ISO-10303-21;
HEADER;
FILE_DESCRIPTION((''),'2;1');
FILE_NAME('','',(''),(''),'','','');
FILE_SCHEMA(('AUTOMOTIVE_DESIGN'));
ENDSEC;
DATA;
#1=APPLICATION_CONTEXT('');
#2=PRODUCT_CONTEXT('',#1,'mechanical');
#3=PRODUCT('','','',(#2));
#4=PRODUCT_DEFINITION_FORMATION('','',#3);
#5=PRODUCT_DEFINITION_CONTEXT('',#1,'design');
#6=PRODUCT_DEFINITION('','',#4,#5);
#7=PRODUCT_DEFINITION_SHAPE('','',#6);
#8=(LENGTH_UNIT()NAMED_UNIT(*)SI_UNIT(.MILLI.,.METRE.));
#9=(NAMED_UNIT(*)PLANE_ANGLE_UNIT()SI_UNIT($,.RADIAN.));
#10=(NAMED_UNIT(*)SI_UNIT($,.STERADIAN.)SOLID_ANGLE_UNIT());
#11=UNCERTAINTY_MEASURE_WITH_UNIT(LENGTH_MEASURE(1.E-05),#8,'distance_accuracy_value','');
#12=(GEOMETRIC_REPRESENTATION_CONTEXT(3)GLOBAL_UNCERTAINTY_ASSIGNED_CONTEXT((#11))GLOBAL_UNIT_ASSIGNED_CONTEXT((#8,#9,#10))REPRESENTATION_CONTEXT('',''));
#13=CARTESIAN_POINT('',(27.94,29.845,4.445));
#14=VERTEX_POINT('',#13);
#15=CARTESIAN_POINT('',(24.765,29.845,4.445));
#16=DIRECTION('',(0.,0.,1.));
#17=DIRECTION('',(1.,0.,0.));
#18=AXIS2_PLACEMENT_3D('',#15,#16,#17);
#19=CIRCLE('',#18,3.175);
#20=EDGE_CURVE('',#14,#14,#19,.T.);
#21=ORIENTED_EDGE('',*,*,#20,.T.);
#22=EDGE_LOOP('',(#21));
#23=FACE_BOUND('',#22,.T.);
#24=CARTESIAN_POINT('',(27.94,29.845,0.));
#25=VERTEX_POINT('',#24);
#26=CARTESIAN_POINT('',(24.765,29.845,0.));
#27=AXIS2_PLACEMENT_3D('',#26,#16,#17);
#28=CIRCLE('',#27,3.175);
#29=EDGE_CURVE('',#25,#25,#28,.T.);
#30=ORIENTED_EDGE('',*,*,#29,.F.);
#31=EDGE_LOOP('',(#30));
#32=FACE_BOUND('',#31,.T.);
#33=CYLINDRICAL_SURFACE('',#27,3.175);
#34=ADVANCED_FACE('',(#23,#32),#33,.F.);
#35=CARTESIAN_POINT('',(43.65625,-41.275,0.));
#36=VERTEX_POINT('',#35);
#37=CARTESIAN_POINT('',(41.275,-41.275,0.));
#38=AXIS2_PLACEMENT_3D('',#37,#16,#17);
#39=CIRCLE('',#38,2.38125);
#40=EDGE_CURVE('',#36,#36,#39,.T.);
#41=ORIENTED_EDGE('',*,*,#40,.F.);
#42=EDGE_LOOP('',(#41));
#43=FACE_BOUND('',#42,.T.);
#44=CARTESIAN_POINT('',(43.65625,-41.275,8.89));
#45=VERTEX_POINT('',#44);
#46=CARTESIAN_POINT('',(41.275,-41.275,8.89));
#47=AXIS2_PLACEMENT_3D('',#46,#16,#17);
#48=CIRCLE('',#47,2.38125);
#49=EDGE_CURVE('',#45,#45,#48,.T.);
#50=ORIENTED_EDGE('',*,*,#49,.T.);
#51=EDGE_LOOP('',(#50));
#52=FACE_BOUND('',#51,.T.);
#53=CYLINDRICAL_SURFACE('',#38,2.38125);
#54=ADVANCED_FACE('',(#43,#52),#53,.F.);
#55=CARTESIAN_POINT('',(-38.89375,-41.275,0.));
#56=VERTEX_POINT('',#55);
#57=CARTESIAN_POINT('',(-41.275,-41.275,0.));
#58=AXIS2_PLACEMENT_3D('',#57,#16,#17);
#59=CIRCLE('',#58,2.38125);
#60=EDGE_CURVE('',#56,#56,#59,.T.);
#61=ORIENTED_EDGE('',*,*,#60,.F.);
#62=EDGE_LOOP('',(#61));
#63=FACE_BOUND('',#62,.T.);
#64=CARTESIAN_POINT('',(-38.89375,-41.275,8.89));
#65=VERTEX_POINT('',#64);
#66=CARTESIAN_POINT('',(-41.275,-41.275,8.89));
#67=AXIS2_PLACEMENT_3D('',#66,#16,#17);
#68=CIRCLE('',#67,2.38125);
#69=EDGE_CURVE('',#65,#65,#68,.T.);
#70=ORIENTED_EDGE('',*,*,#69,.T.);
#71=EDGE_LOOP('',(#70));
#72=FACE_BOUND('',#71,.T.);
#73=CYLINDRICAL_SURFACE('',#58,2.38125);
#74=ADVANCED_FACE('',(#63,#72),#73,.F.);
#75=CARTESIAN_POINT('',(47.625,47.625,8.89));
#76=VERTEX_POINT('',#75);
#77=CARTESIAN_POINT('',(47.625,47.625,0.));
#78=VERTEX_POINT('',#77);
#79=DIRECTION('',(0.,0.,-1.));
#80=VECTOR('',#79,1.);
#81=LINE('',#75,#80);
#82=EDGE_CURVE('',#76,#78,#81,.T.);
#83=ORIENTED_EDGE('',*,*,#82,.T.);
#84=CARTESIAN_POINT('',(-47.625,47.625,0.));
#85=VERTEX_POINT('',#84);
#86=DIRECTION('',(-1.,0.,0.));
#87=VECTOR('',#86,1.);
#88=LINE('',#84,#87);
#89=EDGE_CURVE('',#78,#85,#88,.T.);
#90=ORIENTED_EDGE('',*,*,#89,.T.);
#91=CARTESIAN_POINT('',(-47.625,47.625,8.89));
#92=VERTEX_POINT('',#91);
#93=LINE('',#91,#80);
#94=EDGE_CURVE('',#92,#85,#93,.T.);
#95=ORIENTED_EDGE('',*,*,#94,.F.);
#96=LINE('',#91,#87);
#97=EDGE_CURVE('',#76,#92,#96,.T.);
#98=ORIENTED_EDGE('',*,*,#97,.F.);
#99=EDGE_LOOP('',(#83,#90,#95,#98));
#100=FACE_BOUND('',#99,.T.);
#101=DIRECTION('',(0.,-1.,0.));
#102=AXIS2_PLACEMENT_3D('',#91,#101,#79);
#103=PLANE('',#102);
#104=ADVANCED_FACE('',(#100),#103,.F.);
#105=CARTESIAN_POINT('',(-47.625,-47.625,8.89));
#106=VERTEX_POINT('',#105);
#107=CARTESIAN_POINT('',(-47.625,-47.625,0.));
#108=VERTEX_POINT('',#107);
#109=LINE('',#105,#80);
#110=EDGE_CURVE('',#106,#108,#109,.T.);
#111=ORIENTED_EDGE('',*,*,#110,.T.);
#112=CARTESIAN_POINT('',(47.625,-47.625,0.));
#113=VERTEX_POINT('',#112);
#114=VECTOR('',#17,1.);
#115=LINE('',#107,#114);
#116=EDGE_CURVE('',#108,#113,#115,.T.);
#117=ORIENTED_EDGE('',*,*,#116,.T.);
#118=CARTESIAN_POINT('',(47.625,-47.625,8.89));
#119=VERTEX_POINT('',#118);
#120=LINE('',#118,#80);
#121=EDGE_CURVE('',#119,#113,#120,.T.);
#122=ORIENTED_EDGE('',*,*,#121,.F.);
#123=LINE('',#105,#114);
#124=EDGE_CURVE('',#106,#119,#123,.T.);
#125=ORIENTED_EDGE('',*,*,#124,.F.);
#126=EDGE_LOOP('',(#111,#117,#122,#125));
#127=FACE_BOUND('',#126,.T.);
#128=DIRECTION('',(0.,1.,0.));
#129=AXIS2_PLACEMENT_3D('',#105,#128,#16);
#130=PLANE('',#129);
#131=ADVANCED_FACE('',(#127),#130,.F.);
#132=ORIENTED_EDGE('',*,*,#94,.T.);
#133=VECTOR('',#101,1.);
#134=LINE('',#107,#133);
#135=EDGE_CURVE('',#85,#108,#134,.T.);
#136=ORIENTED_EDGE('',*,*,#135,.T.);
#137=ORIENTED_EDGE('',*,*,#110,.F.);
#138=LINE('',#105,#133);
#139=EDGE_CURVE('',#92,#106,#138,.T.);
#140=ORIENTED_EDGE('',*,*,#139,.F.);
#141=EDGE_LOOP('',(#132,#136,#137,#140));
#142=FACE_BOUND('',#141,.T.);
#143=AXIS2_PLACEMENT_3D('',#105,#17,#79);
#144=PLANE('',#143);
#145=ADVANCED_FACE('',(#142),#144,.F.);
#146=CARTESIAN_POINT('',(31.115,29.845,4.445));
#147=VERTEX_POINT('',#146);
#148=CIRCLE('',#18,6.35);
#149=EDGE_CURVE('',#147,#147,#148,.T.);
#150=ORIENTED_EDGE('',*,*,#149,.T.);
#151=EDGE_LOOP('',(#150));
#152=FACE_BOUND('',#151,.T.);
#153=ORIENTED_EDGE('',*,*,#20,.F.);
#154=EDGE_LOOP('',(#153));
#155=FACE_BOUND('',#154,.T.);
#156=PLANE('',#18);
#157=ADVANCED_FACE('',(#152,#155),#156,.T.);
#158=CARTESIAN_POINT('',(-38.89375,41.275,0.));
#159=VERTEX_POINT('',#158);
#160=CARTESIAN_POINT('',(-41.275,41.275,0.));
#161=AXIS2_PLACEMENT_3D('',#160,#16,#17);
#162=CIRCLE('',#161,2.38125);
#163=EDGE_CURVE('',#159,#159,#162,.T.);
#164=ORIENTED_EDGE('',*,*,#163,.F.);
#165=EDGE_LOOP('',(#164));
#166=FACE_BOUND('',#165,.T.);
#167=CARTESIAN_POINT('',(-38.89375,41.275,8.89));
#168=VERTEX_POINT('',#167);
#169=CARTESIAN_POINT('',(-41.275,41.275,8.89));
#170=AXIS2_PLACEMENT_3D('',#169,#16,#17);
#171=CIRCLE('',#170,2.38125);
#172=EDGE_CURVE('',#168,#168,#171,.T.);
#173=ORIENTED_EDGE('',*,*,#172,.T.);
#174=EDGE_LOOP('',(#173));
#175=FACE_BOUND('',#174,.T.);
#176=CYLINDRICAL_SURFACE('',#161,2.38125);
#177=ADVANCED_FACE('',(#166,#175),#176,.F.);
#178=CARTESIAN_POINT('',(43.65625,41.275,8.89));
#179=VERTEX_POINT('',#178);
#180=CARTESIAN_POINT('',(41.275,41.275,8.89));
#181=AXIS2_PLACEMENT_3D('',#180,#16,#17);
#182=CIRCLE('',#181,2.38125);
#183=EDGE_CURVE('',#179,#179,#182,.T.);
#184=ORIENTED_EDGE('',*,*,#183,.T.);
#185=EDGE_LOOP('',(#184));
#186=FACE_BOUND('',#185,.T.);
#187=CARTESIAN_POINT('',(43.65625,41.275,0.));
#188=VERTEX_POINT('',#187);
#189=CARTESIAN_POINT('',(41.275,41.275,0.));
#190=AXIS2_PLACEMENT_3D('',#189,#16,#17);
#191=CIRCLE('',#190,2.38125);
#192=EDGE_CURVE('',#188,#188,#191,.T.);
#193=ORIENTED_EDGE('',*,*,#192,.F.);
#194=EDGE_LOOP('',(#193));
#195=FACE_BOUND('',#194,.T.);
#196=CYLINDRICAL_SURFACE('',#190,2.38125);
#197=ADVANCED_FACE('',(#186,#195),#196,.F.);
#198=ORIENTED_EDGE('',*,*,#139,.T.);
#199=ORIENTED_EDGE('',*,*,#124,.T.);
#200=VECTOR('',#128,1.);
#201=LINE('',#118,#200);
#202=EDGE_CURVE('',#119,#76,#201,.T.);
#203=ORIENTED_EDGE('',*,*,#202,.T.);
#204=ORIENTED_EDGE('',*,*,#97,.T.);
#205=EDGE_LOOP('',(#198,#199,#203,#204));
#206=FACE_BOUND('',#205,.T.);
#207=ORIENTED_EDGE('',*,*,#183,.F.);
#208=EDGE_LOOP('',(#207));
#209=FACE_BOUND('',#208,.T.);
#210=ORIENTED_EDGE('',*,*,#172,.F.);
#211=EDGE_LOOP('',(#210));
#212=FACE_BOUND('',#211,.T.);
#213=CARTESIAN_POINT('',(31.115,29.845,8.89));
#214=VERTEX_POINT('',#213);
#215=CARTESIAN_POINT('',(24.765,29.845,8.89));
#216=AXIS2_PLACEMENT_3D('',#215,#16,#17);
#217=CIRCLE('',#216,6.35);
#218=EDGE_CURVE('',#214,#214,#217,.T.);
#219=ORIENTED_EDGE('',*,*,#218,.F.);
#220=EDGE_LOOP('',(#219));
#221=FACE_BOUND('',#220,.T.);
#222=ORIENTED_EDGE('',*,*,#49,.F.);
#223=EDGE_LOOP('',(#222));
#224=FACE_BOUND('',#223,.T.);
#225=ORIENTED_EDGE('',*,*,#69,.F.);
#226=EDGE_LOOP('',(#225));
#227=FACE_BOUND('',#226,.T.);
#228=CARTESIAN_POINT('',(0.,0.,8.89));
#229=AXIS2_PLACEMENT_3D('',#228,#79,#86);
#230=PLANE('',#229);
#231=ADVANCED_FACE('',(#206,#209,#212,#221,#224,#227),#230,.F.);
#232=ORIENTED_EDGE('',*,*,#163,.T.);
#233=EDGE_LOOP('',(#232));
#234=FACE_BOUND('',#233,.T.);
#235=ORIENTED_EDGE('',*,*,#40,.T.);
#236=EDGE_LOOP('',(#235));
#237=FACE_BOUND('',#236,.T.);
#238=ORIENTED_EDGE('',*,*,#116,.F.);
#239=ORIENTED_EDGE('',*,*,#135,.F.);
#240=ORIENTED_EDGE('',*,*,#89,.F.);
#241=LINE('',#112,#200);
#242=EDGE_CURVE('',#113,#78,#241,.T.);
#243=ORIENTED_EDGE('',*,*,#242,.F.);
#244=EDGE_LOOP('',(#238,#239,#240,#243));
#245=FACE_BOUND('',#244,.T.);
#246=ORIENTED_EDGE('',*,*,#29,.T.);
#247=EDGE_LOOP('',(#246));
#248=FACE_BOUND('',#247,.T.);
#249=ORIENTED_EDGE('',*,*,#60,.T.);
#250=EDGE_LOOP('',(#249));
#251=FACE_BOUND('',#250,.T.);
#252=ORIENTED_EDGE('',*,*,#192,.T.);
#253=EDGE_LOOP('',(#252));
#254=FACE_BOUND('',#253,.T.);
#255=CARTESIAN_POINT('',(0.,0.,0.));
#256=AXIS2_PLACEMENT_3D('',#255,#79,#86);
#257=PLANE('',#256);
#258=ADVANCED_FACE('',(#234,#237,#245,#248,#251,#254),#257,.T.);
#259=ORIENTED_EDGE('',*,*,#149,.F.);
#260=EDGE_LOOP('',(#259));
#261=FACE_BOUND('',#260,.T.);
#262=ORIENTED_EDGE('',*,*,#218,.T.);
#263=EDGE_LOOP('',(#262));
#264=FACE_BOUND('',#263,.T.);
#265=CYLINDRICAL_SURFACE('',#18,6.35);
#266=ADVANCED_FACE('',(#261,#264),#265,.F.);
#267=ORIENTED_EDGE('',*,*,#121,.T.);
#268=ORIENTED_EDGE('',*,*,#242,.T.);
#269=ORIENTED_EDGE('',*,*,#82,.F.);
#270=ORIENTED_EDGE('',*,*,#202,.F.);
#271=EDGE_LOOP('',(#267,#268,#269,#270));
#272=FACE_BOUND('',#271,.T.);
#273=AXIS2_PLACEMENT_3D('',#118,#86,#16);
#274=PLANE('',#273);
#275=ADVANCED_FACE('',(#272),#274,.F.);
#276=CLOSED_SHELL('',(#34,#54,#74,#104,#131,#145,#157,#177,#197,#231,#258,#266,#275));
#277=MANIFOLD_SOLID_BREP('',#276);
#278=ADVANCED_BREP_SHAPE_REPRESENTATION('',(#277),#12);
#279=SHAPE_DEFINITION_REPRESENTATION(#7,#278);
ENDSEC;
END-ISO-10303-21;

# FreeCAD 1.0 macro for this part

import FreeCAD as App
import Part
import Sketcher
from FreeCAD import Vector
Q = App.Units.Quantity

doc = App.newDocument("Part")
body = doc.addObject("PartDesign::Body", "Body")

# Sketch on XY plane
sketch1 = body.newObject("Sketcher::SketchObject", "Sketch")
sketch1.AttachmentSupport = (doc.getObject("XY_Plane"), [""])
sketch1.MapMode = "FlatFace"
sketch1.addGeometry([
    Part.LineSegment(Vector(-48, 48, 0), Vector(-48, -48, 0)),
    Part.LineSegment(Vector(-48, -48, 0), Vector(48, -48, 0)),
    Part.LineSegment(Vector(48, -48, 0), Vector(48, 48, 0)),
    Part.LineSegment(Vector(48, 48, 0), Vector(-48, 48, 0)),
], False)
sketch1.addConstraint([
    Sketcher.Constraint("Coincident", 0, 2, 1, 1),
    Sketcher.Constraint("Coincident", 1, 2, 2, 1),
    Sketcher.Constraint("Coincident", 2, 2, 3, 1),
    Sketcher.Constraint("Coincident", 3, 2, 0, 1),
    Sketcher.Constraint("Vertical", 0),
    Sketcher.Constraint("Horizontal", 1),
    Sketcher.Constraint("Vertical", 2),
    Sketcher.Constraint("Horizontal", 3),
    Sketcher.Constraint("Symmetric", 0, 2, 2, 2, -1, 1),
    Sketcher.Constraint("Equal", 3, 0),
    Sketcher.Constraint("DistanceX", 1, 1, 1, 2, Q("3.75 in")),
])
pad1 = body.newObject("PartDesign::Pad", "Pad")
pad1.Profile = sketch1
pad1.Length = Q("0.35 in")

# Sketch on XY plane
sketch2 = body.newObject("Sketcher::SketchObject", "Sketch001")
sketch2.AttachmentSupport = (doc.getObject("XY_Plane"), [""])
sketch2.MapMode = "FlatFace"
sketch2.AttachmentOffset = App.Placement(Vector(0, 0, 0.35 * 25.4), App.Rotation())
sketch2.addGeometry([
    Part.LineSegment(Vector(-62.1, 62.1, 0), Vector(-62.1, -62.1, 0)),  # 0
    Part.LineSegment(Vector(-62.1, -62.1, 0), Vector(62.1, -62.1, 0)),  # 1
    Part.LineSegment(Vector(62.1, -62.1, 0), Vector(62.1, 62.1, 0)),  # 2
    Part.LineSegment(Vector(62.1, 62.1, 0), Vector(-62.1, 62.1, 0)),  # 3
    Part.LineSegment(Vector(47.6, -47.6, 0), Vector(-47.6, -47.6, 0)),  # 4
    Part.LineSegment(Vector(-47.6, -47.6, 0), Vector(-47.6, 47.6, 0)),  # 5
    Part.LineSegment(Vector(-47.6, 47.6, 0), Vector(47.6, 47.6, 0)),  # 6
    Part.LineSegment(Vector(47.6, 47.6, 0), Vector(47.6, -47.6, 0)),  # 7
    Part.Circle(Vector(-41.3, 41.3, 0), Vector(0, 0, 1), 2.4),  # 8
    Part.Circle(Vector(41.3, 41.3, 0), Vector(0, 0, 1), 2.4),  # 9
    Part.Circle(Vector(41.3, -41.3, 0), Vector(0, 0, 1), 2.4),  # 10
    Part.Circle(Vector(-41.3, -41.3, 0), Vector(0, 0, 1), 2.4),  # 11
], False)
sketch2.addConstraint([
    Sketcher.Constraint("Coincident", 0, 2, 1, 1),
    Sketcher.Constraint("Coincident", 1, 2, 2, 1),
    Sketcher.Constraint("Coincident", 2, 2, 3, 1),
    Sketcher.Constraint("Coincident", 3, 2, 0, 1),
    Sketcher.Constraint("Coincident", 4, 2, 5, 1),
    Sketcher.Constraint("Coincident", 5, 2, 6, 1),
    Sketcher.Constraint("Coincident", 6, 2, 7, 1),
    Sketcher.Constraint("Coincident", 7, 2, 4, 1),
    Sketcher.Constraint("Vertical", 0),
    Sketcher.Constraint("Horizontal", 1),
    Sketcher.Constraint("Vertical", 2),
    Sketcher.Constraint("Horizontal", 3),
    Sketcher.Constraint("Horizontal", 4),
    Sketcher.Constraint("Vertical", 5),
    Sketcher.Constraint("Horizontal", 6),
    Sketcher.Constraint("Vertical", 7),
    Sketcher.Constraint("Equal", 8, 9),
    Sketcher.Constraint("Equal", 9, 10),
    Sketcher.Constraint("Equal", 10, 11),
    Sketcher.Constraint("Symmetric", 8, 3, 10, 3, -1, 1),
    Sketcher.Constraint("Symmetric", 9, 3, 11, 3, -1, 1),
    Sketcher.Constraint("Symmetric", 0, 2, 2, 2, -1, 1),
    Sketcher.Constraint("Symmetric", 4, 2, 6, 2, -1, 1),
    Sketcher.Constraint("Symmetric", 8, 3, 9, 3, -2),
    Sketcher.Constraint("Equal", 3, 0),
    Sketcher.Constraint("Equal", 6, 5),
    Sketcher.Constraint("Diameter", 8, Q("0.1875 in")),
    Sketcher.Constraint("DistanceX", 4, 2, 4, 1, Q("3.75 in")),
    Sketcher.Constraint("DistanceY", 4, 2, 8, 3, Q("3.5 in")),
    Sketcher.Constraint("DistanceX", 4, 2, 10, 3, Q("3.5 in")),
    Sketcher.Constraint("DistanceX", 1, 1, 1, 2, 124.25),
])
pocket1 = body.newObject("PartDesign::Pocket", "Pocket")
pocket1.Profile = sketch2
pocket1.Type = "ThroughAll"

# Sketch on XY plane
sketch3 = body.newObject("Sketcher::SketchObject", "Sketch002")
sketch3.AttachmentSupport = (doc.getObject("XY_Plane"), [""])
sketch3.MapMode = "FlatFace"
sketch3.AttachmentOffset = App.Placement(Vector(0, 0, 0.35 * 25.4), App.Rotation())
sketch3.addGeometry(Part.Circle(Vector(25, 30, 0), Vector(0, 0, 1), 6), False)
sketch3.addConstraint([
    Sketcher.Constraint("Diameter", 0, Q("0.5 in")),
    Sketcher.Constraint("DistanceX", -1, 1, 0, 3, Q("0.975 in")),
    Sketcher.Constraint("DistanceY", -1, 1, 0, 3, Q("1.175 in")),
])
pocket2 = body.newObject("PartDesign::Pocket", "Pocket001")
pocket2.Profile = sketch3
pocket2.Length = Q("0.175 in")

# Sketch on XY plane
sketch4 = body.newObject("Sketcher::SketchObject", "Sketch003")
sketch4.AttachmentSupport = (doc.getObject("XY_Plane"), [""])
sketch4.MapMode = "FlatFace"
sketch4.AttachmentOffset = App.Placement(Vector(0, 0, 0.175 * 25.4), App.Rotation())
sketch4.addGeometry(Part.Circle(Vector(24.8, 29.8, 0), Vector(0, 0, 1), 3.2), False)
sketch4.addConstraint([
    Sketcher.Constraint("Diameter", 0, Q("0.25 in")),
    Sketcher.Constraint("DistanceX", -1, 1, 0, 3, Q("0.975 in")),
    Sketcher.Constraint("DistanceY", -1, 1, 0, 3, Q("1.175 in")),
])
pocket3 = body.newObject("PartDesign::Pocket", "Pocket002")
pocket3.Profile = sketch4
pocket3.Type = "ThroughAll"

doc.recompute()
